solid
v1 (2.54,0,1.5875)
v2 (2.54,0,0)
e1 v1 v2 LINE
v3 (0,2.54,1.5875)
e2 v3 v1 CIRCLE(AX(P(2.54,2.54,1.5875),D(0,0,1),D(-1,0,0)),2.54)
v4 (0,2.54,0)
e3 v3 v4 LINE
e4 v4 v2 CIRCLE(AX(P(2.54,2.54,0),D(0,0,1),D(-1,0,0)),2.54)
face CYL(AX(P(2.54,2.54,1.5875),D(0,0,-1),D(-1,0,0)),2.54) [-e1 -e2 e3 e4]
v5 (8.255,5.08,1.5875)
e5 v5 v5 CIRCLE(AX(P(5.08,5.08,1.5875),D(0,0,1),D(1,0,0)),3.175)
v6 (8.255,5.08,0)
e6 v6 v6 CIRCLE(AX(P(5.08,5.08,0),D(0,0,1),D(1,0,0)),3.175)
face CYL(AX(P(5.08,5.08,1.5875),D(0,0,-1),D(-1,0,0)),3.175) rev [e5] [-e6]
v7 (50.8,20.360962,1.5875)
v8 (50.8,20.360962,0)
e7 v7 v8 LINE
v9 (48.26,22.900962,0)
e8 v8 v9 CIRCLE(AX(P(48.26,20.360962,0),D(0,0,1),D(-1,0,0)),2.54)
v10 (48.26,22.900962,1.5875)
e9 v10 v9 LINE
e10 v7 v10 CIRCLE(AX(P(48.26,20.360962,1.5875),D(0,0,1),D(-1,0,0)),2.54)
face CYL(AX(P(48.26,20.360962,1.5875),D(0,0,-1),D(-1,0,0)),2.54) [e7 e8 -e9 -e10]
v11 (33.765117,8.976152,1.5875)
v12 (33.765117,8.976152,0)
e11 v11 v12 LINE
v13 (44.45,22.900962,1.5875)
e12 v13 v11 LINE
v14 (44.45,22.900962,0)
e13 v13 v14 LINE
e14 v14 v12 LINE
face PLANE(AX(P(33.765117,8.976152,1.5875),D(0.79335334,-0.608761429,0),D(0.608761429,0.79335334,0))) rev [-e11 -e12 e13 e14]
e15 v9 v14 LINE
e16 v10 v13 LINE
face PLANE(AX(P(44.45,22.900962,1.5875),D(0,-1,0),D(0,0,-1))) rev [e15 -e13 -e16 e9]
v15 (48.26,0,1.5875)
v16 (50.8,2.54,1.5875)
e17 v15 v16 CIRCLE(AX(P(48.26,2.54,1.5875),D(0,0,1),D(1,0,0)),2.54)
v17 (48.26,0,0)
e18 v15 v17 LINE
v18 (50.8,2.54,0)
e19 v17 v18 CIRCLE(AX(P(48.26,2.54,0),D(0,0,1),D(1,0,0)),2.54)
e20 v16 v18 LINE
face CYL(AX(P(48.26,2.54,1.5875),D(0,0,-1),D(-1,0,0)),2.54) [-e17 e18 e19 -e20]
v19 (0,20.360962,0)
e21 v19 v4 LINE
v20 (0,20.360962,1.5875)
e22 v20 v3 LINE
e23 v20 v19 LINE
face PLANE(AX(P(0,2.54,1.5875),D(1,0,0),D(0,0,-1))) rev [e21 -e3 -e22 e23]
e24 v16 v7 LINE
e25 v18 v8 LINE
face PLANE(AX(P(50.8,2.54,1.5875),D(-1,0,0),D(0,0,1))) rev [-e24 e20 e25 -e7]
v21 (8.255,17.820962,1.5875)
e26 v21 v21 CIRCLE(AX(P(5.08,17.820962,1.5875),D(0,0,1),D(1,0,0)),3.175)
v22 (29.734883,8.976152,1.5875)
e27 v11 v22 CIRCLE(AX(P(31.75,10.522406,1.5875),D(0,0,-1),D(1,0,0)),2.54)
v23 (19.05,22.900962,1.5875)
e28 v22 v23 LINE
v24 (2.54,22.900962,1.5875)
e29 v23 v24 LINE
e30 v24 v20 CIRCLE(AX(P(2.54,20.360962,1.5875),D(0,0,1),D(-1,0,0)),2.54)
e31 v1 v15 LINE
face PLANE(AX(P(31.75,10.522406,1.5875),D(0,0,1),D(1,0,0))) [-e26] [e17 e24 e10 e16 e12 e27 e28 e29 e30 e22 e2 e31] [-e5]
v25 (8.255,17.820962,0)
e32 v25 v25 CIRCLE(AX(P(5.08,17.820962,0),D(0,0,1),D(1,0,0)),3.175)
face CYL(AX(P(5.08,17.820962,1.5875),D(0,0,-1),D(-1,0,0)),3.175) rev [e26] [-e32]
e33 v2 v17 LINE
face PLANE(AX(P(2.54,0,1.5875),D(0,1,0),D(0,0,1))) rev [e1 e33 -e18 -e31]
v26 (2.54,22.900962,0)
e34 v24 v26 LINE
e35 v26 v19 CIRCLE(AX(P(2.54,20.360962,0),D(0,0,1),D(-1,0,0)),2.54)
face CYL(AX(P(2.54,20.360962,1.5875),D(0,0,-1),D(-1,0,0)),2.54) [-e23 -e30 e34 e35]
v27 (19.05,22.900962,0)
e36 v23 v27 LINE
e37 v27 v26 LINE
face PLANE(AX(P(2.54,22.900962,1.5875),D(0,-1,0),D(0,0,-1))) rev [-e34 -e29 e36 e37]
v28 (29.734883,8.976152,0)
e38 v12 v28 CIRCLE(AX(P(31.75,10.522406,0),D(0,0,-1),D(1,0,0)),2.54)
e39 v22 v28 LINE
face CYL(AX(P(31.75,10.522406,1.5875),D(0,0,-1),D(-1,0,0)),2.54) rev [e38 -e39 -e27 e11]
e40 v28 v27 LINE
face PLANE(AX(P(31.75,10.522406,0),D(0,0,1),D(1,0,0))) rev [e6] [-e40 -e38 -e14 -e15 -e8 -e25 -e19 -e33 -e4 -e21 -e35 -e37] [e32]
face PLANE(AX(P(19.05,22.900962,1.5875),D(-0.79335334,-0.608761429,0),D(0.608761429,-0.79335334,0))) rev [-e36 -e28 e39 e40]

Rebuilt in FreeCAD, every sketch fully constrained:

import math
import FreeCAD as App
import Part
import Sketcher

V = App.Vector
Q = App.Units.Quantity

doc = App.newDocument("Part")
body = doc.addObject("PartDesign::Body", "Body")

# Sketch on XY plane
sketch1 = doc.addObject("Sketcher::SketchObject", "Sketch")
body.addObject(sketch1)
sketch1.AttachmentSupport = (doc.XY_Plane, [""])
sketch1.MapMode = "FlatFace"
sketch1.addGeometry([
    Part.LineSegment(V(29.7, 9, 0), V(19.1, 22.9, 0)),  # 0
    Part.LineSegment(V(19.1, 22.9, 0), V(2.5, 22.9, 0)),  # 1
    Part.ArcOfCircle(Part.Circle(V(2.5, 20.4, 0), V(0, 0, 1), 2.5), math.radians(90), math.radians(180)),  # 2
    Part.LineSegment(V(0, 20.4, 0), V(0, 2.5, 0)),  # 3
    Part.ArcOfCircle(Part.Circle(V(2.5, 2.5, 0), V(0, 0, 1), 2.5), math.radians(-180), math.radians(-90)),  # 4
    Part.LineSegment(V(2.5, 0, 0), V(48.3, 0, 0)),  # 5
    Part.ArcOfCircle(Part.Circle(V(48.3, 2.5, 0), V(0, 0, 1), 2.5), math.radians(-90), math.radians(0)),  # 6
    Part.LineSegment(V(50.8, 2.5, 0), V(50.8, 20.4, 0)),  # 7
    Part.ArcOfCircle(Part.Circle(V(48.3, 20.4, 0), V(0, 0, 1), 2.5), math.radians(0), math.radians(90)),  # 8
    Part.LineSegment(V(48.3, 22.9, 0), V(44.5, 22.9, 0)),  # 9
    Part.LineSegment(V(44.5, 22.9, 0), V(33.8, 9, 0)),  # 10
    Part.ArcOfCircle(Part.Circle(V(31.8, 10.5, 0), V(0, 0, 1), 2.5), math.radians(-142), math.radians(-38)),  # 11
    Part.Circle(V(5.1, 5.1, 0), V(0, 0, 1), 3.2),  # 12
    Part.Circle(V(5.1, 17.8, 0), V(0, 0, 1), 3.2),  # 13
], False)
sketch1.addConstraint([
    Sketcher.Constraint("Coincident", 0, 2, 1, 1),
    Sketcher.Constraint("Tangent", 1, 2, 2, 1),
    Sketcher.Constraint("Tangent", 2, 2, 3, 1),
    Sketcher.Constraint("Tangent", 3, 2, 4, 1),
    Sketcher.Constraint("Tangent", 4, 2, 5, 1),
    Sketcher.Constraint("Tangent", 5, 2, 6, 1),
    Sketcher.Constraint("Tangent", 6, 2, 7, 1),
    Sketcher.Constraint("Tangent", 7, 2, 8, 1),
    Sketcher.Constraint("Tangent", 8, 2, 9, 1),
    Sketcher.Constraint("Coincident", 9, 2, 10, 1),
    Sketcher.Constraint("Tangent", 10, 2, 11, 2),
    Sketcher.Constraint("Tangent", 11, 1, 0, 1),
    Sketcher.Constraint("Horizontal", 1),
    Sketcher.Constraint("Vertical", 3),
    Sketcher.Constraint("Horizontal", 5),
    Sketcher.Constraint("Vertical", 7),
    Sketcher.Constraint("Horizontal", 9),
    Sketcher.Constraint("Equal", 2, 4),
    Sketcher.Constraint("Equal", 4, 6),
    Sketcher.Constraint("Equal", 6, 8),
    Sketcher.Constraint("Equal", 8, 11),
    Sketcher.Constraint("Equal", 12, 13),
    Sketcher.Constraint("PointOnObject", 2, 2, -2),
    Sketcher.Constraint("PointOnObject", 4, 2, -1),
    Sketcher.Constraint("Horizontal", 2, 3, 8, 3),
    Sketcher.Constraint("Horizontal", 10, 2, 11, 1),
    Sketcher.Constraint("Vertical", 12, 3, 13, 3),
    Sketcher.Constraint("Radius", 2, Q("0.1 in")),
    Sketcher.Constraint("Diameter", 12, Q("0.25 in")),
    Sketcher.Constraint("DistanceX", 5, 1, 5, 2, Q("1.8 in")),
    Sketcher.Constraint("DistanceX", 1, 2, 1, 1, Q("0.65 in")),
    Sketcher.Constraint("DistanceX", 9, 2, 9, 1, Q("0.15 in")),
    Sketcher.Constraint("DistanceX", -1, 1, 12, 3, Q("0.2 in")),
    Sketcher.Constraint("DistanceY", -1, 1, 12, 3, Q("0.2 in")),
    Sketcher.Constraint("Angle", 0, Q("127.5 deg")),
    Sketcher.Constraint("DistanceY", 13, 3, 2, 3, Q("0.1 in")),
    Sketcher.Constraint("DistanceY", 3, 2, 3, 1, Q("17.820962 mm")),
])
pad1 = doc.addObject("PartDesign::Pad", "Pad")
body.addObject(pad1)
pad1.Profile = sketch1
pad1.Length = Q("0.0625 in")

doc.recompute()
